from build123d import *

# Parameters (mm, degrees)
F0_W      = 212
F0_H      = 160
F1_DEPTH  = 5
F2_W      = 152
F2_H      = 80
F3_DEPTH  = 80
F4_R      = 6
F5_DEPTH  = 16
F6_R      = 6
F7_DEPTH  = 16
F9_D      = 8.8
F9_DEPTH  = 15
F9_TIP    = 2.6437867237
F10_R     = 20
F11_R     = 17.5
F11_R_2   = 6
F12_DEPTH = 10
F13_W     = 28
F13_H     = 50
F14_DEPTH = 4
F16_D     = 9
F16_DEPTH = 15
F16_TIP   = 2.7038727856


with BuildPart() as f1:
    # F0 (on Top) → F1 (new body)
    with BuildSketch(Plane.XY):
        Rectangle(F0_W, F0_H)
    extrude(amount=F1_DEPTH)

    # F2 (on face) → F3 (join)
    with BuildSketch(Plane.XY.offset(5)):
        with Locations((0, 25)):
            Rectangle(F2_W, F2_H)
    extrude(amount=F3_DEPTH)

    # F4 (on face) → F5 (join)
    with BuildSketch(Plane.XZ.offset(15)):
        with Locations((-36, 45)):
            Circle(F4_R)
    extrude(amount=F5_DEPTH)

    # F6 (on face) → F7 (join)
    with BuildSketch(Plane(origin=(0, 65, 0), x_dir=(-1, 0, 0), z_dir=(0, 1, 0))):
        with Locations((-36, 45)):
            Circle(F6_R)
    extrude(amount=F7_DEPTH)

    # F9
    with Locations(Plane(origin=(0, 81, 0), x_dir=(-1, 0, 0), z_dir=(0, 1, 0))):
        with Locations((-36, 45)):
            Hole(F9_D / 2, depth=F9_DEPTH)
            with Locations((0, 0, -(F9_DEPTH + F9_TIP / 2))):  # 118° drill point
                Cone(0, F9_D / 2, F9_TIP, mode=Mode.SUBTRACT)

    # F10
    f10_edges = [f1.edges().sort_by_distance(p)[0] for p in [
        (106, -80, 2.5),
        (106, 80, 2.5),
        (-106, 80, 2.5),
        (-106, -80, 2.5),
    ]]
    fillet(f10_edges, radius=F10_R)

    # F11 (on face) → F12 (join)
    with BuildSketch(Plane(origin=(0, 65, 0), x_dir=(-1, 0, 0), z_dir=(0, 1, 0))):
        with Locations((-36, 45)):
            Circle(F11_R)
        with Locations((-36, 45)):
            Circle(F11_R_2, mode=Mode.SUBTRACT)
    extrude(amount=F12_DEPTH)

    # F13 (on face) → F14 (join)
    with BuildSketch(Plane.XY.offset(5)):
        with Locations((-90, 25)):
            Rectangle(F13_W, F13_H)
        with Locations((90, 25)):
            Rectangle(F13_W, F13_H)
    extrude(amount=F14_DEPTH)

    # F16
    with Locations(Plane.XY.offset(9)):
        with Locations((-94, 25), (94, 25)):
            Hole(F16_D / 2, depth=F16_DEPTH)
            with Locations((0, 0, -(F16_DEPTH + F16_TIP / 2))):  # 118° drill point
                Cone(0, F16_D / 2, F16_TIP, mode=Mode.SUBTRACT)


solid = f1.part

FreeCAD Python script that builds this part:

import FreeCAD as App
import Part
import Sketcher
Q = App.Units.Quantity


def edges_at(feature, points):
    """Names of the edges that pass closest to the given points."""
    edges = feature.Shape.Edges
    near = lambda p: min(range(len(edges)), key=lambda i: edges[i].distToShape(Part.Vertex(*p))[0])
    return sorted({f"Edge{near(p) + 1}" for p in points})

doc = App.newDocument("Part")
body = doc.addObject("PartDesign::Body", "Body")

sketch1 = body.newObject("Sketcher::SketchObject", "Sketch")
sketch1.AttachmentSupport = (doc.getObject("XY_Plane"), [""])
sketch1.MapMode = "FlatFace"
sketch1.addGeometry([
    Part.LineSegment(App.Vector(-106, 80, 0), App.Vector(-106, -80, 0)),
    Part.LineSegment(App.Vector(-106, -80, 0), App.Vector(106, -80, 0)),
    Part.LineSegment(App.Vector(106, -80, 0), App.Vector(106, 80, 0)),
    Part.LineSegment(App.Vector(106, 80, 0), App.Vector(-106, 80, 0)),
], False)
sketch1.addConstraint([
    Sketcher.Constraint("Coincident", 0, 2, 1, 1),
    Sketcher.Constraint("Coincident", 1, 2, 2, 1),
    Sketcher.Constraint("Coincident", 2, 2, 3, 1),
    Sketcher.Constraint("Coincident", 3, 2, 0, 1),
    Sketcher.Constraint("Vertical", 0),
    Sketcher.Constraint("Horizontal", 1),
    Sketcher.Constraint("Vertical", 2),
    Sketcher.Constraint("Horizontal", 3),
    Sketcher.Constraint("Symmetric", 0, 2, 2, 2, -1, 1),
    Sketcher.Constraint("DistanceX", 1, 1, 1, 2, Q("212 mm")),
    Sketcher.Constraint("DistanceY", 0, 2, 0, 1, Q("160 mm")),
])
pad1 = body.newObject("PartDesign::Pad", "Pad")
pad1.Profile = sketch1
pad1.Length = 5

sketch2 = body.newObject("Sketcher::SketchObject", "Sketch001")
sketch2.AttachmentSupport = (doc.getObject("XY_Plane"), [""])
sketch2.MapMode = "FlatFace"
sketch2.AttachmentOffset = App.Placement(App.Vector(0, 0, 5), App.Rotation())
sketch2.addGeometry([
    Part.LineSegment(App.Vector(-76, 65, 0), App.Vector(-76, -15, 0)),
    Part.LineSegment(App.Vector(-76, -15, 0), App.Vector(76, -15, 0)),
    Part.LineSegment(App.Vector(76, -15, 0), App.Vector(76, 65, 0)),
    Part.LineSegment(App.Vector(76, 65, 0), App.Vector(-76, 65, 0)),
], False)
sketch2.addConstraint([
    Sketcher.Constraint("Coincident", 0, 2, 1, 1),
    Sketcher.Constraint("Coincident", 1, 2, 2, 1),
    Sketcher.Constraint("Coincident", 2, 2, 3, 1),
    Sketcher.Constraint("Coincident", 3, 2, 0, 1),
    Sketcher.Constraint("Vertical", 0),
    Sketcher.Constraint("Horizontal", 1),
    Sketcher.Constraint("Vertical", 2),
    Sketcher.Constraint("Horizontal", 3),
    Sketcher.Constraint("DistanceX", 1, 1, 1, 2, Q("152 mm")),
    Sketcher.Constraint("DistanceY", 0, 2, 0, 1, Q("80 mm")),
    Sketcher.Constraint("DistanceX", 0, 2, -1, 1, Q("76 mm")),
    Sketcher.Constraint("DistanceY", 0, 2, -1, 1, Q("15 mm")),
])
pad2 = body.newObject("PartDesign::Pad", "Pad001")
pad2.Profile = sketch2
pad2.Length = 80

sketch3 = body.newObject("Sketcher::SketchObject", "Sketch002")
sketch3.AttachmentSupport = (doc.getObject("XZ_Plane"), [""])
sketch3.MapMode = "FlatFace"
sketch3.AttachmentOffset = App.Placement(App.Vector(0, 0, 15), App.Rotation())
sketch3.addGeometry(Part.Circle(App.Vector(-36, 45, 0), App.Vector(0, 0, 1), 6), False)
sketch3.addConstraint([
    Sketcher.Constraint("Diameter", 0, Q("12 mm")),
    Sketcher.Constraint("DistanceX", 0, 3, -1, 1, Q("36 mm")),
    Sketcher.Constraint("DistanceY", -1, 1, 0, 3, Q("45 mm")),
])
pad3 = body.newObject("PartDesign::Pad", "Pad002")
pad3.Profile = sketch3
pad3.Length = 16

sketch4 = body.newObject("Sketcher::SketchObject", "Sketch003")
sketch4.AttachmentSupport = (doc.getObject("XZ_Plane"), [""])
sketch4.MapMode = "FlatFace"
sketch4.AttachmentOffset = App.Placement(App.Vector(0, 0, -65), App.Rotation())
sketch4.addGeometry(Part.Circle(App.Vector(36, 45, 0), App.Vector(0, 0, 1), 6), False)
sketch4.addConstraint([
    Sketcher.Constraint("Diameter", 0, Q("12 mm")),
    Sketcher.Constraint("DistanceX", -1, 1, 0, 3, Q("36 mm")),
    Sketcher.Constraint("DistanceY", -1, 1, 0, 3, Q("45 mm")),
])
pad4 = body.newObject("PartDesign::Pad", "Pad003")
pad4.Profile = sketch4
pad4.Length = 16
pad4.Reversed = True

sketch5 = body.newObject("Sketcher::SketchObject", "Sketch004")
sketch5.AttachmentSupport = (doc.getObject("XZ_Plane"), [""])
sketch5.MapMode = "FlatFace"
sketch5.AttachmentOffset = App.Placement(App.Vector(0, 0, -81), App.Rotation())
sketch5.addGeometry(Part.Circle(App.Vector(36, 45, 0), App.Vector(0, 0, 1), 4.4), False)
sketch5.addConstraint([
    Sketcher.Constraint("Diameter", 0, Q("8.8 mm")),
    Sketcher.Constraint("DistanceX", -1, 1, 0, 3, Q("36 mm")),
    Sketcher.Constraint("DistanceY", -1, 1, 0, 3, Q("45 mm")),
])
doc.recompute()
hole = body.newObject("PartDesign::Hole", "Hole")
hole.Profile = sketch5
hole.ThreadType = "None"
hole.Diameter = 8.8
hole.DepthType = "Dimension"
hole.Depth = 15
hole.DrillPoint = "Angled"
hole.DrillPointAngle = 118
hole.Reversed = True
doc.recompute()

fillet = body.newObject("PartDesign::Fillet", "Fillet")
fillet.Base = (hole, edges_at(hole, [
    (106, -80, 2.5),
    (106, 80, 2.5),
    (-106, 80, 2.5),
    (-106, -80, 2.5),
]))
fillet.Radius = 20

sketch6 = body.newObject("Sketcher::SketchObject", "Sketch005")
sketch6.AttachmentSupport = (doc.getObject("XZ_Plane"), [""])
sketch6.MapMode = "FlatFace"
sketch6.AttachmentOffset = App.Placement(App.Vector(0, 0, -65), App.Rotation())
sketch6.addGeometry([
    Part.Circle(App.Vector(36, 45, 0), App.Vector(0, 0, 1), 18),
    Part.Circle(App.Vector(36, 45, 0), App.Vector(0, 0, 1), 6),
], False)
sketch6.addConstraint([
    Sketcher.Constraint("Coincident", 1, 3, 0, 3),
    Sketcher.Constraint("Diameter", 0, Q("35 mm")),
    Sketcher.Constraint("Diameter", 1, Q("12 mm")),
    Sketcher.Constraint("DistanceX", -1, 1, 0, 3, Q("36 mm")),
    Sketcher.Constraint("DistanceY", -1, 1, 0, 3, Q("45 mm")),
])
pad5 = body.newObject("PartDesign::Pad", "Pad004")
pad5.Profile = sketch6
pad5.Length = 10
pad5.Reversed = True

sketch7 = body.newObject("Sketcher::SketchObject", "Sketch006")
sketch7.AttachmentSupport = (doc.getObject("XY_Plane"), [""])
sketch7.MapMode = "FlatFace"
sketch7.AttachmentOffset = App.Placement(App.Vector(0, 0, 5), App.Rotation())
sketch7.addGeometry([
    Part.LineSegment(App.Vector(-104, 50, 0), App.Vector(-104, 0, 0)),
    Part.LineSegment(App.Vector(-104, 0, 0), App.Vector(-76, 0, 0)),
    Part.LineSegment(App.Vector(-76, 0, 0), App.Vector(-76, 50, 0)),
    Part.LineSegment(App.Vector(-76, 50, 0), App.Vector(-104, 50, 0)),
    Part.LineSegment(App.Vector(76, 50, 0), App.Vector(76, 0, 0)),
    Part.LineSegment(App.Vector(76, 0, 0), App.Vector(104, 0, 0)),
    Part.LineSegment(App.Vector(104, 0, 0), App.Vector(104, 50, 0)),
    Part.LineSegment(App.Vector(104, 50, 0), App.Vector(76, 50, 0)),
], False)
sketch7.addConstraint([
    Sketcher.Constraint("Coincident", 0, 2, 1, 1),
    Sketcher.Constraint("Coincident", 1, 2, 2, 1),
    Sketcher.Constraint("Coincident", 2, 2, 3, 1),
    Sketcher.Constraint("Coincident", 3, 2, 0, 1),
    Sketcher.Constraint("Coincident", 4, 2, 5, 1),
    Sketcher.Constraint("Coincident", 5, 2, 6, 1),
    Sketcher.Constraint("Coincident", 6, 2, 7, 1),
    Sketcher.Constraint("Coincident", 7, 2, 4, 1),
    Sketcher.Constraint("Vertical", 0),
    Sketcher.Constraint("Horizontal", 1),
    Sketcher.Constraint("Vertical", 2),
    Sketcher.Constraint("Horizontal", 3),
    Sketcher.Constraint("Vertical", 4),
    Sketcher.Constraint("Horizontal", 5),
    Sketcher.Constraint("Vertical", 6),
    Sketcher.Constraint("Horizontal", 7),
    Sketcher.Constraint("Symmetric", 1, 2, 4, 2, -1, 1),
    Sketcher.Constraint("Symmetric", 0, 2, 5, 2, -2),
    Sketcher.Constraint("Horizontal", 3, 2, 6, 2),
    Sketcher.Constraint("DistanceX", 1, 1, 1, 2, Q("28 mm")),
    Sketcher.Constraint("DistanceY", 0, 2, 0, 1, Q("50 mm")),
    Sketcher.Constraint("DistanceX", 0, 2, -1, 1, Q("104 mm")),
])
pad6 = body.newObject("PartDesign::Pad", "Pad005")
pad6.Profile = sketch7
pad6.Length = 4

sketch8 = body.newObject("Sketcher::SketchObject", "Sketch007")
sketch8.AttachmentSupport = (doc.getObject("XY_Plane"), [""])
sketch8.MapMode = "FlatFace"
sketch8.AttachmentOffset = App.Placement(App.Vector(0, 0, 9), App.Rotation())
sketch8.addGeometry([
    Part.Circle(App.Vector(-94, 25, 0), App.Vector(0, 0, 1), 4.5),
    Part.Circle(App.Vector(94, 25, 0), App.Vector(0, 0, 1), 4.5),
], False)
sketch8.addConstraint([
    Sketcher.Constraint("Equal", 0, 1),
    Sketcher.Constraint("Symmetric", 0, 3, 1, 3, -2),
    Sketcher.Constraint("Diameter", 0, Q("9 mm")),
    Sketcher.Constraint("DistanceX", 0, 3, -1, 1, Q("94 mm")),
    Sketcher.Constraint("DistanceY", -1, 1, 0, 3, Q("25 mm")),
])
doc.recompute()
hole2 = body.newObject("PartDesign::Hole", "Hole001")
hole2.Profile = sketch8
hole2.ThreadType = "None"
hole2.Diameter = 9
hole2.DepthType = "Dimension"
hole2.Depth = 15
hole2.DrillPoint = "Angled"
hole2.DrillPointAngle = 118

doc.recompute()
